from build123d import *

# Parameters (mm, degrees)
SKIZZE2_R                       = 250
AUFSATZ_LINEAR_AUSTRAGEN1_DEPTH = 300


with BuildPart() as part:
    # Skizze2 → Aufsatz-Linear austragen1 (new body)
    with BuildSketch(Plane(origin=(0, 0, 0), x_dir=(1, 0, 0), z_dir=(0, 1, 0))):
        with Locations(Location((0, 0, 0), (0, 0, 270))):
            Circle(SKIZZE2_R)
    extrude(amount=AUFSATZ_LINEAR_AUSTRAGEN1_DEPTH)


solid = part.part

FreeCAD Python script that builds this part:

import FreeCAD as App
import Part
import Sketcher
Q = App.Units.Quantity

doc = App.newDocument("Part")
params = doc.addObject("Spreadsheet::Sheet", "Params")
for row, (alias, value) in enumerate([
    ("sketch1_diameter", "500 mm"),
    ("pad1_length", "300 mm"),
], start=1):
    params.set(f"A{row}", alias)
    params.set(f"B{row}", "=" + value)
    params.setAlias(f"B{row}", alias)

body = doc.addObject("PartDesign::Body", "Body")

sketch1 = body.newObject("Sketcher::SketchObject", "Sketch")
sketch1.AttachmentSupport = (doc.getObject("XZ_Plane"), [""])
sketch1.MapMode = "FlatFace"
sketch1.addGeometry(Part.Circle(App.Vector(0, 0, 0), App.Vector(0, 0, 1), 250), False)
sketch1.addConstraint(Sketcher.Constraint("Coincident", 0, 3, -1, 1))
sketch1.addConstraint(Sketcher.Constraint("Diameter", 0, Q("500 mm")))
sketch1.setExpression("Constraints[1]", "Params.sketch1_diameter")
pad1 = body.newObject("PartDesign::Pad", "Pad")
pad1.Profile = sketch1
pad1.setExpression("Length", "Params.pad1_length")
pad1.Reversed = True

doc.recompute()
